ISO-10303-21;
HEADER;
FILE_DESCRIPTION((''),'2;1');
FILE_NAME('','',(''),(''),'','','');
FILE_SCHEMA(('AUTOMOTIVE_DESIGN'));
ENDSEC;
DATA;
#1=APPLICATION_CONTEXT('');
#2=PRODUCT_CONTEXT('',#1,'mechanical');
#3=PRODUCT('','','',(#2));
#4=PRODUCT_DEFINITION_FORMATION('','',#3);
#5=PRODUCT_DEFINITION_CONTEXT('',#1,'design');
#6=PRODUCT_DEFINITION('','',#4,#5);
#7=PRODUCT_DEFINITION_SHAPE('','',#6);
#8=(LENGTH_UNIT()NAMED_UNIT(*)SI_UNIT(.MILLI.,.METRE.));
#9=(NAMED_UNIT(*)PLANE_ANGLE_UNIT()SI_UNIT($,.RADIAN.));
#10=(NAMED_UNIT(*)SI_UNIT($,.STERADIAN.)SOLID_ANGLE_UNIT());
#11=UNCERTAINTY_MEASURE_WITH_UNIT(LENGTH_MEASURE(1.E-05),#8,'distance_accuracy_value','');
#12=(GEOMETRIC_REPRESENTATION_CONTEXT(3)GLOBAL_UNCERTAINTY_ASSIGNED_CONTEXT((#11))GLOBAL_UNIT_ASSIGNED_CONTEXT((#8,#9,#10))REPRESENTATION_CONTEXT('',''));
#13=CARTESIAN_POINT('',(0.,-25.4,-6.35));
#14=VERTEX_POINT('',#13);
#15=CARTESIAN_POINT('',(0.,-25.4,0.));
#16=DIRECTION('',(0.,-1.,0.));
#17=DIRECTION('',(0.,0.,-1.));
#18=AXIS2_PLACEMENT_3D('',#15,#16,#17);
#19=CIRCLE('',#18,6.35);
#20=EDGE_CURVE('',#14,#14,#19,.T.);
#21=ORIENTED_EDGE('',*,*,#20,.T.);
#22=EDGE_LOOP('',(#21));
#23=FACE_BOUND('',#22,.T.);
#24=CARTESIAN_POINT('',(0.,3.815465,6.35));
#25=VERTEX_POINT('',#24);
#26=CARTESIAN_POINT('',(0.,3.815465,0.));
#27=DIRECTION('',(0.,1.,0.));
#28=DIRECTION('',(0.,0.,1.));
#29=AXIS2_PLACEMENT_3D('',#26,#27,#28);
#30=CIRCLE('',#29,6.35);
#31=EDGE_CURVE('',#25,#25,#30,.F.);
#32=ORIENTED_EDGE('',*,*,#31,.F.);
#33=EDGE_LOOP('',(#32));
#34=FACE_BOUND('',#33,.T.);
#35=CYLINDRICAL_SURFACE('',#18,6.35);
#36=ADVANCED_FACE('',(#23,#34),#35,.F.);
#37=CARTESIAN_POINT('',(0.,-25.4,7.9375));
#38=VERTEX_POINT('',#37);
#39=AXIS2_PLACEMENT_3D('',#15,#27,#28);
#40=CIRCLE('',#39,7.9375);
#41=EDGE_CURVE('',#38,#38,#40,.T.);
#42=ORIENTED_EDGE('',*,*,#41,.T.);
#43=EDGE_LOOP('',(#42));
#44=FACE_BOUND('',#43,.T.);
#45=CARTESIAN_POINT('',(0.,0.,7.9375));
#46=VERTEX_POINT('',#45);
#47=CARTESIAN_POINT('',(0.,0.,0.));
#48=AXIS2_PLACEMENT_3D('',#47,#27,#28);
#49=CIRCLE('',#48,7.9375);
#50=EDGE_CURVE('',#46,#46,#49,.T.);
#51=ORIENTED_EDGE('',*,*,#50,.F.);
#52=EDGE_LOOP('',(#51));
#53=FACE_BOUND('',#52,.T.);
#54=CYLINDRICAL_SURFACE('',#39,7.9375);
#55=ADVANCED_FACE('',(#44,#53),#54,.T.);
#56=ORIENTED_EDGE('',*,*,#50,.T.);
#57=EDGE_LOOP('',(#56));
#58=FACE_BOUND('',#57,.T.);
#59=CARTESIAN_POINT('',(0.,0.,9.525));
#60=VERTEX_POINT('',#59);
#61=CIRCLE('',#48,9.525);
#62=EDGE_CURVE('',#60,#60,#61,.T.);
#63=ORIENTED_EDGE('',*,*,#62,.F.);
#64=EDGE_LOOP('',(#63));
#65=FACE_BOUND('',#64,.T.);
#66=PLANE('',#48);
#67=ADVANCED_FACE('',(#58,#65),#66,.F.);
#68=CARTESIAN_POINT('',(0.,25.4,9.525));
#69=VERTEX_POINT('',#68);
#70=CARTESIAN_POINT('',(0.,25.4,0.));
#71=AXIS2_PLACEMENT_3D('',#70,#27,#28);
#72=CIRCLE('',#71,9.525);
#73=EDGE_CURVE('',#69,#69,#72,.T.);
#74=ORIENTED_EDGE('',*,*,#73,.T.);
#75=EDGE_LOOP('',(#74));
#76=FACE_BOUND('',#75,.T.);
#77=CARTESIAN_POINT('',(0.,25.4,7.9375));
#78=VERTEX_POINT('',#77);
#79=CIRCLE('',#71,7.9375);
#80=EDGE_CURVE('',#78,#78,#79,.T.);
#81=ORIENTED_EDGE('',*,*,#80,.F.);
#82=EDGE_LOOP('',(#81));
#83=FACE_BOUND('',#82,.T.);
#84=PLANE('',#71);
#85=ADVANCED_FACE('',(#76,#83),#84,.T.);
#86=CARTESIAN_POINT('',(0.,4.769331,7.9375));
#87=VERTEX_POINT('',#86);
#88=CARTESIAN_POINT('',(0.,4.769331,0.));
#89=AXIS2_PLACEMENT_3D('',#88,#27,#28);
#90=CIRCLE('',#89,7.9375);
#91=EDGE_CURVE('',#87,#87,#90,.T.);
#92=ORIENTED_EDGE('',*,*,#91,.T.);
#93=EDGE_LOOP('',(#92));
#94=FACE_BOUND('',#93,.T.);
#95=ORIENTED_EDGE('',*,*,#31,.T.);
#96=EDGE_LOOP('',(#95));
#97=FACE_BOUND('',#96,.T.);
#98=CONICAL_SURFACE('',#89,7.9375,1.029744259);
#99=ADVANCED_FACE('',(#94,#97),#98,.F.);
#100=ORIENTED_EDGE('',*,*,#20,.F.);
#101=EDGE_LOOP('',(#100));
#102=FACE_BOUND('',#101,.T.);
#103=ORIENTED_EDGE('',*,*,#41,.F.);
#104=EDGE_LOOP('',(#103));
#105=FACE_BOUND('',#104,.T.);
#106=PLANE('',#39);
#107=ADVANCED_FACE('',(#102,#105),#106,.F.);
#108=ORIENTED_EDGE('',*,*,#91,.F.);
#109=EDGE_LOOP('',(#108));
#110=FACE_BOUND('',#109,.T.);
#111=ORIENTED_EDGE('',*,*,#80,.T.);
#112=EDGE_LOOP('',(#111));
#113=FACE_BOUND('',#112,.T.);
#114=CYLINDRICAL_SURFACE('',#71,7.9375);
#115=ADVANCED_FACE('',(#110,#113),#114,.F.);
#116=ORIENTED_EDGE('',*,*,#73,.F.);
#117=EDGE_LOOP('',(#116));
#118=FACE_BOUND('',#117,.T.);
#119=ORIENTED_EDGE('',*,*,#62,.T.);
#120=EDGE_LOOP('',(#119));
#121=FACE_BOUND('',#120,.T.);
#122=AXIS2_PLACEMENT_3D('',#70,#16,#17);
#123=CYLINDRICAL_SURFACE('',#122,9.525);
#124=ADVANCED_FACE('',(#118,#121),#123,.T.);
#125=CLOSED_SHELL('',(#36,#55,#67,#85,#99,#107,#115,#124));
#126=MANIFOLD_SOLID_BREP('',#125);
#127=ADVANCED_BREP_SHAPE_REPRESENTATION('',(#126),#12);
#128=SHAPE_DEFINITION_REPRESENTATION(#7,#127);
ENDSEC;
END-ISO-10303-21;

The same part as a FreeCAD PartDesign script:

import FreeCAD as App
import Part
import Sketcher
from FreeCAD import Vector
Q = App.Units.Quantity

doc = App.newDocument("Part")
body = doc.addObject("PartDesign::Body", "Body")

# Sketch on XZ plane
sketch1 = body.newObject("Sketcher::SketchObject", "Sketch")
sketch1.AttachmentSupport = (doc.getObject("XZ_Plane"), [""])
sketch1.MapMode = "FlatFace"
sketch1.addGeometry(Part.Circle(Vector(0, 0, 0), Vector(0, 0, 1), 9.525), False)
sketch1.addConstraint(Sketcher.Constraint("Coincident", 0, 3, -1, 1))
sketch1.addConstraint(Sketcher.Constraint("Diameter", 0, Q("0.75 in")))
pad1 = body.newObject("PartDesign::Pad", "Pad")
pad1.Profile = sketch1
pad1.Length = Q("1 in")
pad1.Reversed = True

# Sketch on XZ plane
sketch2 = body.newObject("Sketcher::SketchObject", "Sketch001")
sketch2.AttachmentSupport = (doc.getObject("XZ_Plane"), [""])
sketch2.MapMode = "FlatFace"
sketch2.addGeometry(Part.Circle(Vector(0, 0, 0), Vector(0, 0, 1), 7.9375), False)
sketch2.addConstraint(Sketcher.Constraint("Coincident", 0, 3, -1, 1))
sketch2.addConstraint(Sketcher.Constraint("Diameter", 0, Q("0.625 in")))
pad2 = body.newObject("PartDesign::Pad", "Pad001")
pad2.Profile = sketch2
pad2.Length = Q("1 in")

# Sketch on XZ plane
sketch3 = body.newObject("Sketcher::SketchObject", "Sketch002")
sketch3.AttachmentSupport = (doc.getObject("XZ_Plane"), [""])
sketch3.MapMode = "FlatFace"
sketch3.AttachmentOffset = App.Placement(Vector(0, 0, -1 * 25.4), App.Rotation())
sketch3.addGeometry(Part.Circle(Vector(0, 0, 0), Vector(0, 0, 1), 7.9375), False)
sketch3.addConstraint(Sketcher.Constraint("Coincident", 0, 3, -1, 1))
sketch3.addConstraint(Sketcher.Constraint("Diameter", 0, Q("0.625 in")))
doc.recompute()
hole = body.newObject("PartDesign::Hole", "Hole")
hole.Profile = sketch3
hole.ThreadType = "None"
hole.Diameter = Q("0.625 in")
hole.DepthType = "Dimension"
hole.Depth = 20.630669
hole.DrillPoint = "Angled"
hole.DrillPointAngle = 118
hole.Reversed = True

# Sketch on XZ plane
sketch4 = body.newObject("Sketcher::SketchObject", "Sketch003")
sketch4.AttachmentSupport = (doc.getObject("XZ_Plane"), [""])
sketch4.MapMode = "FlatFace"
sketch4.AttachmentOffset = App.Placement(Vector(0, 0, 1 * 25.4), App.Rotation())
sketch4.addGeometry(Part.Circle(Vector(0, 0, 0), Vector(0, 0, 1), 6.35), False)
sketch4.addConstraint(Sketcher.Constraint("Coincident", 0, 3, -1, 1))
sketch4.addConstraint(Sketcher.Constraint("Diameter", 0, Q("0.5 in")))
doc.recompute()
hole2 = body.newObject("PartDesign::Hole", "Hole001")
hole2.Profile = sketch4
hole2.ThreadType = "None"
hole2.Diameter = Q("0.5 in")
hole2.DepthType = "ThroughAll"

doc.recompute()
